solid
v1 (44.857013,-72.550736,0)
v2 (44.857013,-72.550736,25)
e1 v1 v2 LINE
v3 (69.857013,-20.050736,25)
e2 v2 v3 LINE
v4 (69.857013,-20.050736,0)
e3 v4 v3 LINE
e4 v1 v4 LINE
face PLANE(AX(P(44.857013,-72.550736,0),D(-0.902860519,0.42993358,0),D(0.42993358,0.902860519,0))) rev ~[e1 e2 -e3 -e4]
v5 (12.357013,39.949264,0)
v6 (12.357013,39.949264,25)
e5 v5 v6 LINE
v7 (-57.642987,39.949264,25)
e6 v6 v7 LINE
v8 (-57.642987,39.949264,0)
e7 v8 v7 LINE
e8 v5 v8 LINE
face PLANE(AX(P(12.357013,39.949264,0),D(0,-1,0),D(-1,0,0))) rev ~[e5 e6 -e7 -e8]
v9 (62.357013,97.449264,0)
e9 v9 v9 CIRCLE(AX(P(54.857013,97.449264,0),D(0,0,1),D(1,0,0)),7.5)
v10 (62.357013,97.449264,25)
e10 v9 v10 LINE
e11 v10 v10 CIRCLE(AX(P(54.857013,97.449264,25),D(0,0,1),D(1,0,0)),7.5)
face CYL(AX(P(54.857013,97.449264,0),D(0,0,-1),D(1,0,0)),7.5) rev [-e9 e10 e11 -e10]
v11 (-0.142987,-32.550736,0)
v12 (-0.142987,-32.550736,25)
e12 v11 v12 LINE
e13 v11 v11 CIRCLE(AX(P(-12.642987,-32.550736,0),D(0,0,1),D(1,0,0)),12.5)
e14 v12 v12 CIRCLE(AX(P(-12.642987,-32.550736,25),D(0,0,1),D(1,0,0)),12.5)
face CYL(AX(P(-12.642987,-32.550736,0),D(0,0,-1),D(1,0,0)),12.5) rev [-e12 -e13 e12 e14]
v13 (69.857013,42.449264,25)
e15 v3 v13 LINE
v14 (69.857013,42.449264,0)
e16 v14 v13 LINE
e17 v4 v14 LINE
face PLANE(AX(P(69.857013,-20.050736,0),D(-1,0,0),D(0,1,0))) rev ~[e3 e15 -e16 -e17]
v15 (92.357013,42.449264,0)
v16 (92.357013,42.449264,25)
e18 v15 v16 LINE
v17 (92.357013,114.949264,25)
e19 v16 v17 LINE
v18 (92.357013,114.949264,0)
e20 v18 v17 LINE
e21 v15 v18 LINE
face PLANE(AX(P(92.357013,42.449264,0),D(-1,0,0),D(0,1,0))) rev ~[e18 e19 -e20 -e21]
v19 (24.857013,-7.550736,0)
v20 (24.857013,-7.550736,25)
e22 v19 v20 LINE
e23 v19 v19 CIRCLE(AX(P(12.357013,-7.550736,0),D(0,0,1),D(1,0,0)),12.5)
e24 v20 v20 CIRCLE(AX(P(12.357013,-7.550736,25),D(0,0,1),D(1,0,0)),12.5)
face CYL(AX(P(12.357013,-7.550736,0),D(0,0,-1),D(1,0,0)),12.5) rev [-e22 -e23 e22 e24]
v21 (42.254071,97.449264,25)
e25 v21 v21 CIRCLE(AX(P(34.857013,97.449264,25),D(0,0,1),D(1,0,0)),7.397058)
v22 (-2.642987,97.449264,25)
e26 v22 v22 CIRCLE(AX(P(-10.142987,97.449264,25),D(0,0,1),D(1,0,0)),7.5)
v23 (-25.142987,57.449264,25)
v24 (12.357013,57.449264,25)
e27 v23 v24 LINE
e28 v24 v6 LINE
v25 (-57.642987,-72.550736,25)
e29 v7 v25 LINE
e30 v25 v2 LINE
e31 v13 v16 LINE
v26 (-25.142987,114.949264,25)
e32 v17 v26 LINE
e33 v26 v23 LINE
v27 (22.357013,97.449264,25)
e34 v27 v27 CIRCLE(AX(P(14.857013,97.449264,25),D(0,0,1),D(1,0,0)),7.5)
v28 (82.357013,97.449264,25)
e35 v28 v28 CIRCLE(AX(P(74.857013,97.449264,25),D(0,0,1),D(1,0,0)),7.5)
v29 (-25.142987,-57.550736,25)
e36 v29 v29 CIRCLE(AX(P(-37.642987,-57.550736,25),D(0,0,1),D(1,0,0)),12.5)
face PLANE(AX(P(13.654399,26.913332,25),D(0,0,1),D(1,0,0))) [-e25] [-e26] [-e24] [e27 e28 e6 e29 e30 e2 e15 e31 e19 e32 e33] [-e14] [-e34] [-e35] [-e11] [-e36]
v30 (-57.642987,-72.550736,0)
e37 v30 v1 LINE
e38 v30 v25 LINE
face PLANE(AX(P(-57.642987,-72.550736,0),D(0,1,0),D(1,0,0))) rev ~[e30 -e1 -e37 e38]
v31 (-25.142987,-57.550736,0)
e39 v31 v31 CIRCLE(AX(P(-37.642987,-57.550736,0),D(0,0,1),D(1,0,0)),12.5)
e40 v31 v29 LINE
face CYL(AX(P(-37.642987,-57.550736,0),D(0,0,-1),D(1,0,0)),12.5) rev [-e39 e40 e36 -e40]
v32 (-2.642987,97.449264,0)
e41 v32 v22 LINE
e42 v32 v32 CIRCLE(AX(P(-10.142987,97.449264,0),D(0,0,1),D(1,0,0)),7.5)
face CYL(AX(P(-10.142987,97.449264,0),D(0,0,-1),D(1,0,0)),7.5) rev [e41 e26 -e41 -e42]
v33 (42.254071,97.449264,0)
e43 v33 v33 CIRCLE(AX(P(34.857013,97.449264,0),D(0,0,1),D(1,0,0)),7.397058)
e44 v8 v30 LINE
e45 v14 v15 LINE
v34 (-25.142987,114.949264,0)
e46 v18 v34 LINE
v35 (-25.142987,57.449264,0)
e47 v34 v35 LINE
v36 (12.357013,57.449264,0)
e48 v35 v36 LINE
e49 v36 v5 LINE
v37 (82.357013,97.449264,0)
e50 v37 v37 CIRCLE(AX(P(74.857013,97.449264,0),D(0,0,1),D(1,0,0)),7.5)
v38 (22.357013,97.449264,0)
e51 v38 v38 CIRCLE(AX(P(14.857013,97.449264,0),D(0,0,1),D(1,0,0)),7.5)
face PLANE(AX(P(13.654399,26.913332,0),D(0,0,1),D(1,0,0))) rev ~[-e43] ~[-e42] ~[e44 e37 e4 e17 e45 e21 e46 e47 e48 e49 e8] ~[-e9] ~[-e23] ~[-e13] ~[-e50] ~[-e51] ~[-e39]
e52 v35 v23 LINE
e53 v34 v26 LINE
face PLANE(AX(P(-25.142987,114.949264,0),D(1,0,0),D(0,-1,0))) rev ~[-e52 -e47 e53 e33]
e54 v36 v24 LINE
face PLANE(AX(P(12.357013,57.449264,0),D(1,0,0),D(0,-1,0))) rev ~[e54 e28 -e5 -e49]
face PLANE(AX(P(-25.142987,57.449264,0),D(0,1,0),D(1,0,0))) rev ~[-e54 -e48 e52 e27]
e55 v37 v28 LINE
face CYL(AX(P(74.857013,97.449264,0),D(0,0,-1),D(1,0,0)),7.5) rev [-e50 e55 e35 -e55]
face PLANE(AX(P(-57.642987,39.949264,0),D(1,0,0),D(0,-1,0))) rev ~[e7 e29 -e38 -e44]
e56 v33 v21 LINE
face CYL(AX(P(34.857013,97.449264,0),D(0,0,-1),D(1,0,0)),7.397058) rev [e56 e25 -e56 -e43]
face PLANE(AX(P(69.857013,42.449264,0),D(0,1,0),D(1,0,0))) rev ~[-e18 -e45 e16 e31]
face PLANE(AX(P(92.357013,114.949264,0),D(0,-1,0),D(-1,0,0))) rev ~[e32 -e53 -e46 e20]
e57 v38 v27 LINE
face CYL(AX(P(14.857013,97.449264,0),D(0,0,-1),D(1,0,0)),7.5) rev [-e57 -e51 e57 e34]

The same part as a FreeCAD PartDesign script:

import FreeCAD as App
import Part
import Sketcher
from FreeCAD import Vector
Q = App.Units.Quantity

doc = App.newDocument("Part")
params = doc.addObject("Spreadsheet::Sheet", "Params")
for row, (alias, value) in enumerate([
    ("sketch1_diameter", "25 mm"),
    ("sketch1_diameter2", "15 mm"),
    ("sketch1_width", "70 mm"),
    ("sketch1_width2", "102.5 mm"),
    ("sketch1_width3", "22.5 mm"),
    ("pad1_length", "25 mm"),
], start=1):
    params.set(f"A{row}", alias)
    params.set(f"B{row}", "=" + value)
    params.setAlias(f"B{row}", alias)

body = doc.addObject("PartDesign::Body", "Body")

sketch1 = doc.addObject("Sketcher::SketchObject", "Sketch")
body.addObject(sketch1)
sketch1.AttachmentSupport = (doc.XY_Plane, [""])
sketch1.MapMode = "FlatFace"
sketch1.addGeometry(Part.LineSegment(Vector(-57.642987, 39.949264, 0), Vector(-57.642987, -72.550736, 0)), False)
sketch1.addGeometry(Part.LineSegment(Vector(-57.642987, -72.550736, 0), Vector(44.857013, -72.550736, 0)), False)
sketch1.addGeometry(Part.LineSegment(Vector(44.857013, -72.550736, 0), Vector(69.857013, -20.050736, 0)), False)
sketch1.addGeometry(Part.LineSegment(Vector(69.857013, -20.050736, 0), Vector(69.857013, 42.449264, 0)), False)
sketch1.addGeometry(Part.LineSegment(Vector(69.857013, 42.449264, 0), Vector(92.357013, 42.449264, 0)), False)
sketch1.addGeometry(Part.LineSegment(Vector(92.357013, 42.449264, 0), Vector(92.357013, 114.949264, 0)), False)
sketch1.addGeometry(Part.LineSegment(Vector(92.357013, 114.949264, 0), Vector(-25.142987, 114.949264, 0)), False)
sketch1.addGeometry(Part.LineSegment(Vector(-25.142987, 114.949264, 0), Vector(-25.142987, 57.449264, 0)), False)
sketch1.addGeometry(Part.LineSegment(Vector(-25.142987, 57.449264, 0), Vector(12.357013, 57.449264, 0)), False)
sketch1.addGeometry(Part.LineSegment(Vector(12.357013, 57.449264, 0), Vector(12.357013, 39.949264, 0)), False)
sketch1.addGeometry(Part.LineSegment(Vector(12.357013, 39.949264, 0), Vector(-57.642987, 39.949264, 0)), False)
sketch1.addGeometry(Part.Circle(Vector(-37.642987, -57.550736, 0), Vector(0, 0, 1), 12.5), False)
sketch1.addGeometry(Part.Circle(Vector(-12.642987, -32.550736, 0), Vector(0, 0, 1), 12.5), False)
sketch1.addGeometry(Part.Circle(Vector(12.357013, -7.550736, 0), Vector(0, 0, 1), 12.5), False)
sketch1.addGeometry(Part.Circle(Vector(-10.142987, 97.449264, 0), Vector(0, 0, 1), 7.5), False)
sketch1.addGeometry(Part.Circle(Vector(14.857013, 97.449264, 0), Vector(0, 0, 1), 7.5), False)
sketch1.addGeometry(Part.Circle(Vector(34.857013, 97.449264, 0), Vector(0, 0, 1), 7.397058), False)
sketch1.addGeometry(Part.Circle(Vector(54.857013, 97.449264, 0), Vector(0, 0, 1), 7.5), False)
sketch1.addGeometry(Part.Circle(Vector(74.857013, 97.449264, 0), Vector(0, 0, 1), 7.5), False)
sketch1.addConstraint(Sketcher.Constraint("Coincident", 0, 2, 1, 1))
sketch1.addConstraint(Sketcher.Constraint("Coincident", 1, 2, 2, 1))
sketch1.addConstraint(Sketcher.Constraint("Coincident", 2, 2, 3, 1))
sketch1.addConstraint(Sketcher.Constraint("Coincident", 3, 2, 4, 1))
sketch1.addConstraint(Sketcher.Constraint("Coincident", 4, 2, 5, 1))
sketch1.addConstraint(Sketcher.Constraint("Coincident", 5, 2, 6, 1))
sketch1.addConstraint(Sketcher.Constraint("Coincident", 6, 2, 7, 1))
sketch1.addConstraint(Sketcher.Constraint("Coincident", 7, 2, 8, 1))
sketch1.addConstraint(Sketcher.Constraint("Coincident", 8, 2, 9, 1))
sketch1.addConstraint(Sketcher.Constraint("Coincident", 9, 2, 10, 1))
sketch1.addConstraint(Sketcher.Constraint("Coincident", 10, 2, 0, 1))
sketch1.addConstraint(Sketcher.Constraint("Vertical", 0))
sketch1.addConstraint(Sketcher.Constraint("Horizontal", 1))
sketch1.addConstraint(Sketcher.Constraint("Vertical", 3))
sketch1.addConstraint(Sketcher.Constraint("Horizontal", 4))
sketch1.addConstraint(Sketcher.Constraint("Vertical", 5))
sketch1.addConstraint(Sketcher.Constraint("Horizontal", 6))
sketch1.addConstraint(Sketcher.Constraint("Vertical", 7))
sketch1.addConstraint(Sketcher.Constraint("Horizontal", 8))
sketch1.addConstraint(Sketcher.Constraint("Vertical", 9))
sketch1.addConstraint(Sketcher.Constraint("Horizontal", 10))
sketch1.addConstraint(Sketcher.Constraint("Equal", 11, 12))
sketch1.addConstraint(Sketcher.Constraint("Equal", 12, 13))
sketch1.addConstraint(Sketcher.Constraint("Equal", 14, 15))
sketch1.addConstraint(Sketcher.Constraint("Equal", 15, 17))
sketch1.addConstraint(Sketcher.Constraint("Equal", 17, 18))
sketch1.addConstraint(Sketcher.Constraint("Horizontal", 14, 3, 15, 3))
sketch1.addConstraint(Sketcher.Constraint("Horizontal", 15, 3, 16, 3))
sketch1.addConstraint(Sketcher.Constraint("Horizontal", 16, 3, 17, 3))
sketch1.addConstraint(Sketcher.Constraint("Horizontal", 17, 3, 18, 3))
sketch1.addConstraint(Sketcher.Constraint("Vertical", 13, 3, 8, 2))
sketch1.addConstraint(Sketcher.Constraint("Diameter", 11, Q("25 mm")))
sketch1.addConstraint(Sketcher.Constraint("Diameter", 14, Q("15 mm")))
sketch1.addConstraint(Sketcher.Constraint("DistanceX", 10, 2, 10, 1, Q("70 mm")))
sketch1.addConstraint(Sketcher.Constraint("DistanceX", 1, 1, 1, 2, Q("102.5 mm")))
sketch1.addConstraint(Sketcher.Constraint("DistanceX", 4, 1, 4, 2, Q("22.5 mm")))
sketch1.addConstraint(Sketcher.Constraint("DistanceX", 6, 2, 6, 1, Q("117.5 mm")))
sketch1.addConstraint(Sketcher.Constraint("DistanceX", 8, 1, 8, 2, Q("37.5 mm")))
sketch1.addConstraint(Sketcher.Constraint("DistanceY", 0, 2, 0, 1, Q("112.5 mm")))
sketch1.addConstraint(Sketcher.Constraint("DistanceY", 3, 1, 3, 2, Q("62.5 mm")))
sketch1.addConstraint(Sketcher.Constraint("DistanceY", 5, 1, 5, 2, Q("72.5 mm")))
sketch1.addConstraint(Sketcher.Constraint("DistanceY", 7, 2, 7, 1, Q("57.5 mm")))
sketch1.addConstraint(Sketcher.Constraint("DistanceY", 9, 2, 9, 1, Q("17.5 mm")))
sketch1.addConstraint(Sketcher.Constraint("DistanceX", 11, 3, 12, 3, Q("25 mm")))
sketch1.addConstraint(Sketcher.Constraint("DistanceY", 11, 3, 12, 3, Q("25 mm")))
sketch1.addConstraint(Sketcher.Constraint("DistanceX", 12, 3, 13, 3, Q("25 mm")))
sketch1.addConstraint(Sketcher.Constraint("DistanceY", 12, 3, 13, 3, Q("25 mm")))
sketch1.addConstraint(Sketcher.Constraint("DistanceY", 13, 3, 14, 3, Q("105 mm")))
sketch1.addConstraint(Sketcher.Constraint("DistanceX", 14, 3, 15, 3, Q("25 mm")))
sketch1.addConstraint(Sketcher.Constraint("DistanceX", 15, 3, 16, 3, Q("20 mm")))
sketch1.addConstraint(Sketcher.Constraint("DistanceX", 16, 3, 17, 3, Q("20 mm")))
sketch1.addConstraint(Sketcher.Constraint("DistanceX", 17, 3, 18, 3, Q("20 mm")))
sketch1.addConstraint(Sketcher.Constraint("DistanceY", 0, 2, 11, 3, Q("15 mm")))
sketch1.addConstraint(Sketcher.Constraint("DistanceX", 16, 3, 1, 2, Q("10 mm")))
sketch1.addConstraint(Sketcher.Constraint("Diameter", 16, Q("14.794116 mm")))
sketch1.addConstraint(Sketcher.Constraint("DistanceX", 11, 3, -1, 1, Q("37.642987 mm")))
sketch1.addConstraint(Sketcher.Constraint("DistanceY", 11, 3, -1, 1, Q("57.550736 mm")))
sketch1.setExpression("Constraints[31]", "Params.sketch1_diameter")
sketch1.setExpression("Constraints[32]", "Params.sketch1_diameter2")
sketch1.setExpression("Constraints[33]", "Params.sketch1_width")
sketch1.setExpression("Constraints[34]", "Params.sketch1_width2")
sketch1.setExpression("Constraints[35]", "Params.sketch1_width3")
pad1 = doc.addObject("PartDesign::Pad", "Pad")
body.addObject(pad1)
pad1.Profile = sketch1
pad1.setExpression("Length", "Params.pad1_length")

doc.recompute()
